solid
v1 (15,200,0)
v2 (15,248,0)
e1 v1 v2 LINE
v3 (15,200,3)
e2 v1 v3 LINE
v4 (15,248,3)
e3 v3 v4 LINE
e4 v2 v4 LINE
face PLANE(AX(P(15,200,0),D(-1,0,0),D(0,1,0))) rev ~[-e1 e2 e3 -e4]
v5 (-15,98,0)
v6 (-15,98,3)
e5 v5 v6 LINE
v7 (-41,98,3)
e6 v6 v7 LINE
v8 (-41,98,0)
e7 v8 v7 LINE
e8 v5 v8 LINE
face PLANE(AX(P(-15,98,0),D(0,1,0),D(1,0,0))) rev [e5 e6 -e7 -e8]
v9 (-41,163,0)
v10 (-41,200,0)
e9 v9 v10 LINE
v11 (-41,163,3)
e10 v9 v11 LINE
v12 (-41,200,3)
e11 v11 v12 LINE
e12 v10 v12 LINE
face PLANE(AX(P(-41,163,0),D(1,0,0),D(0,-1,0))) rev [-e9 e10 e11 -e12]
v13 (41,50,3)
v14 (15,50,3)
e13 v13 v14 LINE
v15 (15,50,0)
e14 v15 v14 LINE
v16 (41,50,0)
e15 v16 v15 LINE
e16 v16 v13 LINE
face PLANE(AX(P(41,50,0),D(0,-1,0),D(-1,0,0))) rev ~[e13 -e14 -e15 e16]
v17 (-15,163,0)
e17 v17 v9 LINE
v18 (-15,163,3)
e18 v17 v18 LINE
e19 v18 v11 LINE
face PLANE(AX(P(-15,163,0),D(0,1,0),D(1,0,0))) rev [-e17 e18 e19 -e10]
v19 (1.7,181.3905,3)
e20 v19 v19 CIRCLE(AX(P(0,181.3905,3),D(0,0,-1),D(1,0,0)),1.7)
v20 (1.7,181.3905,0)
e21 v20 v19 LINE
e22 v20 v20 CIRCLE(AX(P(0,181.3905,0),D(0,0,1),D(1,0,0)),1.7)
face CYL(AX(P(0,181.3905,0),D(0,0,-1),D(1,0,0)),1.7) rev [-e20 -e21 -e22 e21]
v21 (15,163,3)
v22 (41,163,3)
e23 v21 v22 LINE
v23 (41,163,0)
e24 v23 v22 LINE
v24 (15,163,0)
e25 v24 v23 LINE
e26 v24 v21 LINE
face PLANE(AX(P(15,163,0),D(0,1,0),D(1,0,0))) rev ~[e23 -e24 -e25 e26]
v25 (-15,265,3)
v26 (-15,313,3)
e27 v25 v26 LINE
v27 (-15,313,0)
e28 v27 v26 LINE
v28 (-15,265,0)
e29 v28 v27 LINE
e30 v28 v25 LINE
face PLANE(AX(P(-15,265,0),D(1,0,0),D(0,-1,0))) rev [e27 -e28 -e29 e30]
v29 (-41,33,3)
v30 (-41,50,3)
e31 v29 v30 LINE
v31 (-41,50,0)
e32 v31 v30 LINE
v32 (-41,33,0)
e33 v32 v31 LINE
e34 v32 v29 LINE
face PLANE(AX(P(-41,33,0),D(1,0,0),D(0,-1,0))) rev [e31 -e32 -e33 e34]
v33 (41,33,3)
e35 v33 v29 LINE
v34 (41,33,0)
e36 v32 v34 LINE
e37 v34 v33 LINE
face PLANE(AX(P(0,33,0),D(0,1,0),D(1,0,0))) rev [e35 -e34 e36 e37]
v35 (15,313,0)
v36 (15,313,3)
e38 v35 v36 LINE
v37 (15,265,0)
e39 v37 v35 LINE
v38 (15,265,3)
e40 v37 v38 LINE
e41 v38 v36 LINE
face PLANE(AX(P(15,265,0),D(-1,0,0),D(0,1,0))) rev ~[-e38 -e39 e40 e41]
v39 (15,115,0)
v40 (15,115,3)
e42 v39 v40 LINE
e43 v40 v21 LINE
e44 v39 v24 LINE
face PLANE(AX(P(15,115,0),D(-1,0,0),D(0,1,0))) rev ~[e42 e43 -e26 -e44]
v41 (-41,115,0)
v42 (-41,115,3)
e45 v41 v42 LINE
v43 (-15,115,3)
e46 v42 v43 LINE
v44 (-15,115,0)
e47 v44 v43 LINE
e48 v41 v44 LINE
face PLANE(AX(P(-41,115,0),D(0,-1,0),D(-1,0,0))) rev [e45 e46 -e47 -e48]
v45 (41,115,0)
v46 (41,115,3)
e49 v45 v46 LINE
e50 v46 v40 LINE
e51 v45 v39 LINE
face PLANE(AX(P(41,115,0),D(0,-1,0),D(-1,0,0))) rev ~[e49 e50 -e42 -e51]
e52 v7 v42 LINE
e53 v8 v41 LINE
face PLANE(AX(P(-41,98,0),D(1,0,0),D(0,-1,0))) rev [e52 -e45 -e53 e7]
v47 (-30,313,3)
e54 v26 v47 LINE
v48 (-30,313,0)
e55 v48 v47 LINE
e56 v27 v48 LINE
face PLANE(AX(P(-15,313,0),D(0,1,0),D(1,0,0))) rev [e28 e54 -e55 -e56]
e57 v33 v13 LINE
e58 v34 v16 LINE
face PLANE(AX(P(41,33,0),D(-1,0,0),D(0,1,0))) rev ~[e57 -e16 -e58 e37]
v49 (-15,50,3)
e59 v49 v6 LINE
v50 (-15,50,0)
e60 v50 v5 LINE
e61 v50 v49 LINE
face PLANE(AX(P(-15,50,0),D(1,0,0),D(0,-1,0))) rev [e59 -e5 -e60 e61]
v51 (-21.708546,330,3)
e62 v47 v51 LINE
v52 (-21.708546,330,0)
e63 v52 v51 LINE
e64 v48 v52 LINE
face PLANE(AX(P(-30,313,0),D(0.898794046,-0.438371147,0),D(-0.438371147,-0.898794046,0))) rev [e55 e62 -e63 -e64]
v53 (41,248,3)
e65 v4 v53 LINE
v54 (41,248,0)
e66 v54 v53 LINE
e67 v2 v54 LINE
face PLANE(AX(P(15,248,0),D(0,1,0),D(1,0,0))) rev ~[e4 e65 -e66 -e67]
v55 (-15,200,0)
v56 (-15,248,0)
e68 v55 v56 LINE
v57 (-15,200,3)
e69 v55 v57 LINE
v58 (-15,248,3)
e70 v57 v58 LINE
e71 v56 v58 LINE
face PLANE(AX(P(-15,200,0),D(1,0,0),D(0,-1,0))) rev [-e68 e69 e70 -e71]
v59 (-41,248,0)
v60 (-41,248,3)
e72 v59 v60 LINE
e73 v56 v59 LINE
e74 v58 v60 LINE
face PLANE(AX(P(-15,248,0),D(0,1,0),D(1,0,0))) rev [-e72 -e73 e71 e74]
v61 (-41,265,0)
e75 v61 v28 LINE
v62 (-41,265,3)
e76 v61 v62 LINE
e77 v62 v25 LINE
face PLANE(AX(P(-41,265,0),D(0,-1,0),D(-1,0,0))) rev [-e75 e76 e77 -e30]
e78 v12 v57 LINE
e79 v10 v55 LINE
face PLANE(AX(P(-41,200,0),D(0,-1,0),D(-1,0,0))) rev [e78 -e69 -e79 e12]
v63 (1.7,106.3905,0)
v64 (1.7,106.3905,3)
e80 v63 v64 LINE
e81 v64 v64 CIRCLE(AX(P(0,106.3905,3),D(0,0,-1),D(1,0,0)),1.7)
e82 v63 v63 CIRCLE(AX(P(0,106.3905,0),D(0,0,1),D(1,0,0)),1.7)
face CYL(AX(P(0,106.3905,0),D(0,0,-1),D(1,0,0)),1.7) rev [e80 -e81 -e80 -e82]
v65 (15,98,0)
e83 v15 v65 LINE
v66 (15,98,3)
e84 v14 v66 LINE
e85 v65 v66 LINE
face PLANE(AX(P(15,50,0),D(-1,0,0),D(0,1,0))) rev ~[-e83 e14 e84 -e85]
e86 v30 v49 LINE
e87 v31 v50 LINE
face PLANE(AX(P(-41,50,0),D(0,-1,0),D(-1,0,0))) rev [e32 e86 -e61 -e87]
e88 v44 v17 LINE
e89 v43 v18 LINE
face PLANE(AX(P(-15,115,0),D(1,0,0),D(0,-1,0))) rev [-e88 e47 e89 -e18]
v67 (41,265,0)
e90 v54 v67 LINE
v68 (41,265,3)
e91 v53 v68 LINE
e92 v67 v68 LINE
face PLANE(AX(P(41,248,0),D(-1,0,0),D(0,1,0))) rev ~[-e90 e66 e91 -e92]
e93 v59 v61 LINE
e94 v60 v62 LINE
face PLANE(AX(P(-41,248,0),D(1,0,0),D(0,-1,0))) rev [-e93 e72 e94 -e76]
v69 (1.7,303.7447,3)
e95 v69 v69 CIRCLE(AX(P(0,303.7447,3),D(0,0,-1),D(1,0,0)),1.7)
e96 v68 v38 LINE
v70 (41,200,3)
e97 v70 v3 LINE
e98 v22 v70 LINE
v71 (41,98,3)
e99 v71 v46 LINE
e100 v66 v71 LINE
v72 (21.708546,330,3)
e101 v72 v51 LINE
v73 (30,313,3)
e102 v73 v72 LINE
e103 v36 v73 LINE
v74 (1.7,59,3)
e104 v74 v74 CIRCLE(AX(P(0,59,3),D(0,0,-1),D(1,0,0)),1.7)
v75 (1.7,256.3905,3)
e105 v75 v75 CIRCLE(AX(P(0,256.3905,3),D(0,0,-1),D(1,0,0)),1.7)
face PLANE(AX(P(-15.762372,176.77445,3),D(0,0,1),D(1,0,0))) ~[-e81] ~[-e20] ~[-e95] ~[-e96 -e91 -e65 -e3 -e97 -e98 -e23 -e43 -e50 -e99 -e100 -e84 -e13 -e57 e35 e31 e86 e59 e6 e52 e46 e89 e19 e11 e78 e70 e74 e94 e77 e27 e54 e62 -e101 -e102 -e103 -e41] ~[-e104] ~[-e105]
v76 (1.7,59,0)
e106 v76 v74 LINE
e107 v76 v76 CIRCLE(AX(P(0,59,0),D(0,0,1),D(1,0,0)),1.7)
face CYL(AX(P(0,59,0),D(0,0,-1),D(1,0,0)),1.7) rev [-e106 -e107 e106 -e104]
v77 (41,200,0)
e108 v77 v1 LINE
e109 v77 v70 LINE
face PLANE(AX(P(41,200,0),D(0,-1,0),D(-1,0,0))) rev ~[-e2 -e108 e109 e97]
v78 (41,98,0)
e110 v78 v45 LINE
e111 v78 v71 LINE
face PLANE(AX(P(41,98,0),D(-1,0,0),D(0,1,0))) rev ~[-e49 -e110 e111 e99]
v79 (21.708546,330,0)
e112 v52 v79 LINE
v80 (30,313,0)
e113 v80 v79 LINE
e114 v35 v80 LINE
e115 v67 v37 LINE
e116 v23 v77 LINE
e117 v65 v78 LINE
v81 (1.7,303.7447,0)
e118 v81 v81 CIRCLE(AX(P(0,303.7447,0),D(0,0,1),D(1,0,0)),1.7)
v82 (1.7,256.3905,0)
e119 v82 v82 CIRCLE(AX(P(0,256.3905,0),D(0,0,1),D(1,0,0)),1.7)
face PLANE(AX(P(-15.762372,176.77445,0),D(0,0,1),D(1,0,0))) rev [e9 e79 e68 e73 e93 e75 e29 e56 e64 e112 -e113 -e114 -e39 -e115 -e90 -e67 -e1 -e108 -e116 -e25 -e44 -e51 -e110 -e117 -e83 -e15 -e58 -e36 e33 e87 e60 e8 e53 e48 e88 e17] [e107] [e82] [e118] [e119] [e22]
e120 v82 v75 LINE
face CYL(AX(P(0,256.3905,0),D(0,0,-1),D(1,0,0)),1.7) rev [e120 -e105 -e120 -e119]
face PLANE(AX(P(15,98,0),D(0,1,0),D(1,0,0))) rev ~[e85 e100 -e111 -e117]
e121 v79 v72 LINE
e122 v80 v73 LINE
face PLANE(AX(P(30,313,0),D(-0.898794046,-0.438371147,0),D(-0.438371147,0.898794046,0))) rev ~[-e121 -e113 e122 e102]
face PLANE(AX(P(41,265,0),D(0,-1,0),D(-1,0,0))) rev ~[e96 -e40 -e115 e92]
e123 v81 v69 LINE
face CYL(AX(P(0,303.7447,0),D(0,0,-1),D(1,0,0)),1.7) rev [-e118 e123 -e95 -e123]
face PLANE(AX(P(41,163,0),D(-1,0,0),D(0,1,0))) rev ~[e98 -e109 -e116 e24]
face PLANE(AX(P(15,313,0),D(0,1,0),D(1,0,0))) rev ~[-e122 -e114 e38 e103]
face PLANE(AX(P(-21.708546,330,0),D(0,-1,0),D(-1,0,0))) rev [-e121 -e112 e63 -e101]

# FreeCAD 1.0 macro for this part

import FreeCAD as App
import Part
import Sketcher

V = App.Vector
Q = App.Units.Quantity


def add_polygon(sketch, points):
    """Adds a closed chain of lines whose ends are joined by coincident constraints."""
    first, n = sketch.GeometryCount, len(points)
    for a, b in zip(points, points[1:] + points[:1]):
        sketch.addGeometry(Part.LineSegment(App.Vector(*a, 0), App.Vector(*b, 0)), False)
    for i in range(n):
        sketch.addConstraint(Sketcher.Constraint("Coincident", first + i, 2, first + (i + 1) % n, 1))

doc = App.newDocument("Part")
body = doc.addObject("PartDesign::Body", "Body")

sketch1 = doc.addObject("Sketcher::SketchObject", "Sketch")
body.addObject(sketch1)
sketch1.AttachmentSupport = (doc.XY_Plane, [""])
sketch1.MapMode = "FlatFace"
add_polygon(sketch1, [(0, 33), (41, 33), (41, 50), (15, 50), (15, 98), (41, 98), (41, 115), (15, 115), (15, 163), (41, 163), (41, 200), (15, 200), (15, 248), (41, 248), (41, 265), (15, 265), (15, 313), (30, 313), (22, 330), (0, 330)])
sketch1.addConstraint(Sketcher.Constraint("Horizontal", 0))
sketch1.addConstraint(Sketcher.Constraint("Vertical", 1))
sketch1.addConstraint(Sketcher.Constraint("Horizontal", 2))
sketch1.addConstraint(Sketcher.Constraint("Vertical", 3))
sketch1.addConstraint(Sketcher.Constraint("Horizontal", 4))
sketch1.addConstraint(Sketcher.Constraint("Vertical", 5))
sketch1.addConstraint(Sketcher.Constraint("Horizontal", 6))
sketch1.addConstraint(Sketcher.Constraint("Vertical", 7))
sketch1.addConstraint(Sketcher.Constraint("Horizontal", 8))
sketch1.addConstraint(Sketcher.Constraint("Vertical", 9))
sketch1.addConstraint(Sketcher.Constraint("Horizontal", 10))
sketch1.addConstraint(Sketcher.Constraint("Vertical", 11))
sketch1.addConstraint(Sketcher.Constraint("Horizontal", 12))
sketch1.addConstraint(Sketcher.Constraint("Vertical", 13))
sketch1.addConstraint(Sketcher.Constraint("Horizontal", 14))
sketch1.addConstraint(Sketcher.Constraint("Vertical", 15))
sketch1.addConstraint(Sketcher.Constraint("Horizontal", 16))
sketch1.addConstraint(Sketcher.Constraint("Horizontal", 18))
sketch1.addConstraint(Sketcher.Constraint("Vertical", 19))
sketch1.addConstraint(Sketcher.Constraint("PointOnObject", 18, 2, -2))
sketch1.addConstraint(Sketcher.Constraint("Vertical", 1, 2, 4, 2))
sketch1.addConstraint(Sketcher.Constraint("Vertical", 3, 2, 6, 2))
sketch1.addConstraint(Sketcher.Constraint("Vertical", 5, 2, 8, 2))
sketch1.addConstraint(Sketcher.Constraint("Vertical", 7, 2, 10, 2))
sketch1.addConstraint(Sketcher.Constraint("Vertical", 9, 2, 12, 2))
sketch1.addConstraint(Sketcher.Constraint("Vertical", 11, 2, 14, 2))
sketch1.addConstraint(Sketcher.Constraint("Equal", 1, 5))
sketch1.addConstraint(Sketcher.Constraint("Equal", 3, 7))
sketch1.addConstraint(Sketcher.Constraint("Equal", 7, 11))
sketch1.addConstraint(Sketcher.Constraint("Equal", 5, 13))
sketch1.addConstraint(Sketcher.Constraint("Equal", 11, 15))
sketch1.addConstraint(Sketcher.Constraint("DistanceX", 0, 1, 0, 2, 41.0))
sketch1.addConstraint(Sketcher.Constraint("DistanceX", 2, 2, 2, 1, 26.0))
sketch1.addConstraint(Sketcher.Constraint("DistanceX", 16, 1, 16, 2, 15.0))
sketch1.addConstraint(Sketcher.Constraint("DistanceY", 1, 1, 1, 2, 17.0))
sketch1.addConstraint(Sketcher.Constraint("DistanceY", 3, 1, 3, 2, 48.0))
sketch1.addConstraint(Sketcher.Constraint("DistanceY", 9, 1, 9, 2, 37.0))
sketch1.addConstraint(Sketcher.Constraint("DistanceY", 19, 2, 19, 1, 297.0))
sketch1.addConstraint(Sketcher.Constraint("Angle", 17, Q("116 deg")))
sketch1.addConstraint(Sketcher.Constraint("DistanceY", -1, 1, 0, 2, 33.0))
pad1 = doc.addObject("PartDesign::Pad", "Pad")
body.addObject(pad1)
pad1.Profile = sketch1
pad1.Length = 3
doc.recompute()

mirrored = doc.addObject("PartDesign::Mirrored", "Mirrored")
body.addObject(mirrored)
mirrored.Originals = [pad1]
mirrored.MirrorPlane = (doc.YZ_Plane, [""])
body.Tip = mirrored

sketch2 = doc.addObject("Sketcher::SketchObject", "Sketch001")
body.addObject(sketch2)
sketch2.AttachmentSupport = (doc.XY_Plane, [""])
sketch2.MapMode = "FlatFace"
sketch2.addGeometry(Part.Circle(V(0, 59, 0), V(0, 0, 1), 1.7), False)
sketch2.addGeometry(Part.Circle(V(0, 106.4, 0), V(0, 0, 1), 1.7), False)
sketch2.addGeometry(Part.Circle(V(0, 181.4, 0), V(0, 0, 1), 1.7), False)
sketch2.addGeometry(Part.Circle(V(0, 256.4, 0), V(0, 0, 1), 1.7), False)
sketch2.addGeometry(Part.Circle(V(0, 303.7, 0), V(0, 0, 1), 1.7), False)
sketch2.addConstraint(Sketcher.Constraint("Equal", 0, 1))
sketch2.addConstraint(Sketcher.Constraint("Equal", 1, 2))
sketch2.addConstraint(Sketcher.Constraint("Equal", 2, 3))
sketch2.addConstraint(Sketcher.Constraint("Equal", 3, 4))
sketch2.addConstraint(Sketcher.Constraint("PointOnObject", 0, 3, -2))
sketch2.addConstraint(Sketcher.Constraint("PointOnObject", 1, 3, -2))
sketch2.addConstraint(Sketcher.Constraint("PointOnObject", 2, 3, -2))
sketch2.addConstraint(Sketcher.Constraint("PointOnObject", 3, 3, -2))
sketch2.addConstraint(Sketcher.Constraint("PointOnObject", 4, 3, -2))
sketch2.addConstraint(Sketcher.Constraint("Diameter", 0, 3.4))
sketch2.addConstraint(Sketcher.Constraint("DistanceY", -1, 1, 0, 3, 59.0))
sketch2.addConstraint(Sketcher.Constraint("DistanceY", 1, 3, 2, 3, 75.0))
sketch2.addConstraint(Sketcher.Constraint("DistanceY", 2, 3, 3, 3, 75.0))
sketch2.addConstraint(Sketcher.Constraint("DistanceY", -1, 1, 1, 3, 106.3905))
sketch2.addConstraint(Sketcher.Constraint("DistanceY", -1, 1, 4, 3, 303.7447))
pocket1 = doc.addObject("PartDesign::Pocket", "Pocket")
body.addObject(pocket1)
pocket1.Profile = sketch2
pocket1.Type = "ThroughAll"
pocket1.Midplane = True

doc.recompute()
